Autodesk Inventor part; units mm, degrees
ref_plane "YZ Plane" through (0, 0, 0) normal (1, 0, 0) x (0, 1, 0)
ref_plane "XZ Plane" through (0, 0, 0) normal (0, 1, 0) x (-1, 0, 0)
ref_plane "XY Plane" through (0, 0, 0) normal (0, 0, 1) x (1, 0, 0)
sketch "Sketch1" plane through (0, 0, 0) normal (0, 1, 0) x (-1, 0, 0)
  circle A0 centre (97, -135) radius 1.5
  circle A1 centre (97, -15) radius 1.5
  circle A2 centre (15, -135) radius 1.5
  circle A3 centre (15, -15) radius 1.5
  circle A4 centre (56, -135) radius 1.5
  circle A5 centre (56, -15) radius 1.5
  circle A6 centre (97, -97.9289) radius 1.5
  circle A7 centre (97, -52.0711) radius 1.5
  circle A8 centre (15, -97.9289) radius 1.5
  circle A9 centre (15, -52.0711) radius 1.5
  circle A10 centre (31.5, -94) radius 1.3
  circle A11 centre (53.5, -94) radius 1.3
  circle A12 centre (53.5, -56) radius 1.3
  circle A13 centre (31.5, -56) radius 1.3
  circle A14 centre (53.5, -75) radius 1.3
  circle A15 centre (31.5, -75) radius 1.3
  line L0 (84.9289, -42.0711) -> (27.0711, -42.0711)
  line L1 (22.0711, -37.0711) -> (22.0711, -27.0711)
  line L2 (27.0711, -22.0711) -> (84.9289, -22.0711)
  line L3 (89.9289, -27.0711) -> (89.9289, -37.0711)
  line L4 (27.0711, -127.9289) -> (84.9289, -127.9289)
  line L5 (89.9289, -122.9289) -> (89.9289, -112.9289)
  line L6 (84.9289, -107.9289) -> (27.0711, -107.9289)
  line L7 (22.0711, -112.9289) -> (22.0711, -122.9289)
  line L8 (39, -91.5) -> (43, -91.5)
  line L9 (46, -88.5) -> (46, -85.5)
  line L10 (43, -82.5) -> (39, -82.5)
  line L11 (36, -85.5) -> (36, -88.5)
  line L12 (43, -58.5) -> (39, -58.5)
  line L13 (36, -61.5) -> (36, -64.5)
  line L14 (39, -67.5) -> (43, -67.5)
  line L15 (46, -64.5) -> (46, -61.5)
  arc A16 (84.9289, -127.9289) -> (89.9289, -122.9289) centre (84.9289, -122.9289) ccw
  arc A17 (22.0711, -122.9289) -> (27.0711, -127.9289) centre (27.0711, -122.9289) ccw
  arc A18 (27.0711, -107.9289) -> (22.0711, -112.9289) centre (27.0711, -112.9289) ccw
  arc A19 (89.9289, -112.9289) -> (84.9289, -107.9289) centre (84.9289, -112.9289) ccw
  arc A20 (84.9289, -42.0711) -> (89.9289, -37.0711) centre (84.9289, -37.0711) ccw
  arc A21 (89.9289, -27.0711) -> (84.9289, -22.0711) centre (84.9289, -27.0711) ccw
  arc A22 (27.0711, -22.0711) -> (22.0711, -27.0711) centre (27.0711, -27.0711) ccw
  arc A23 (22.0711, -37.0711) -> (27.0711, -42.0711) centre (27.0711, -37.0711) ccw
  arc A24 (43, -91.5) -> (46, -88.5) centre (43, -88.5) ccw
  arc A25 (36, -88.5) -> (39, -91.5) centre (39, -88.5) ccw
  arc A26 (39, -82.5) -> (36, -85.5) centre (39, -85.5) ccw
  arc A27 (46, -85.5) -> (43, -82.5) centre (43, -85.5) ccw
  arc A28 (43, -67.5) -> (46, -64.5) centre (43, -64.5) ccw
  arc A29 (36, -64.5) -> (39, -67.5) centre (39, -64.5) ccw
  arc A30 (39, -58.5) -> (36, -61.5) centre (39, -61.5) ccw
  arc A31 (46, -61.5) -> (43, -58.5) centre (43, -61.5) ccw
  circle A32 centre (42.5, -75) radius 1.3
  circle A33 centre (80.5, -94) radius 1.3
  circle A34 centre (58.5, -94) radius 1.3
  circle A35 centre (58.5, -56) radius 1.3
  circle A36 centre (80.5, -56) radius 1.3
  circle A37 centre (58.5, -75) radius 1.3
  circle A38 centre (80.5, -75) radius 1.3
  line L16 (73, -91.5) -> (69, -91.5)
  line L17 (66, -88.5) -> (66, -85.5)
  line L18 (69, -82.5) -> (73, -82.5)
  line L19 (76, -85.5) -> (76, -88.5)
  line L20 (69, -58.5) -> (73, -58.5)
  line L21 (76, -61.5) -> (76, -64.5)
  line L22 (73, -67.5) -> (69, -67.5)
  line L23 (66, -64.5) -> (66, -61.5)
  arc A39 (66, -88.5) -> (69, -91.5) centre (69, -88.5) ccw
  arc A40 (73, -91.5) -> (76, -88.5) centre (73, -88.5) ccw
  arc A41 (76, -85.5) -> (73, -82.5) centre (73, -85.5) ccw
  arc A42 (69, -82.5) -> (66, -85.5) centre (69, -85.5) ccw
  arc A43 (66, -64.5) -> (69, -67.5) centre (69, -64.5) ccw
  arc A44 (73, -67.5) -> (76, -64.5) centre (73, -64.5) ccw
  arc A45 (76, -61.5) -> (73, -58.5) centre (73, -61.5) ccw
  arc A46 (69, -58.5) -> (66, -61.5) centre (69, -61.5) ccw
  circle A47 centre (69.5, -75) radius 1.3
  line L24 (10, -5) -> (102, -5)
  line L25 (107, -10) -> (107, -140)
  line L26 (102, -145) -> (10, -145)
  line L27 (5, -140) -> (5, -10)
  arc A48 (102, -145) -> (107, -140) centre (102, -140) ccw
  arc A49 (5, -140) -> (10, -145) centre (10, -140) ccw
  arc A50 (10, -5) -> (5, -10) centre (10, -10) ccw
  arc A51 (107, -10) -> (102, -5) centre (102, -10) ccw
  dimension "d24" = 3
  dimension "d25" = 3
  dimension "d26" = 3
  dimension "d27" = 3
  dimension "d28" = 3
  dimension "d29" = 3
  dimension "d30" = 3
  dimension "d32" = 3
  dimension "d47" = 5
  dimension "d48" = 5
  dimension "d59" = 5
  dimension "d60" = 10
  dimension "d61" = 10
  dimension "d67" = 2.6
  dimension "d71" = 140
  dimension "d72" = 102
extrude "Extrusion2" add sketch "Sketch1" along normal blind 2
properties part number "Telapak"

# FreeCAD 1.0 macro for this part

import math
import FreeCAD as App
import Part
import Sketcher
from FreeCAD import Vector

doc = App.newDocument("Part")
params = doc.addObject("Spreadsheet::Sheet", "Params")
for row, (alias, value) in enumerate([
    ("sketch1_diameter", "3 mm"),
    ("sketch1_radius", "5 mm"),
    ("sketch1_radius2", "3 mm"),
    ("sketch1_diameter2", "2.6 mm"),
    ("sketch1_height", "3 mm"),
    ("pad1_length", "2 mm"),
], start=1):
    params.set(f"A{row}", alias)
    params.set(f"B{row}", "=" + value)
    params.setAlias(f"B{row}", alias)

body = doc.addObject("PartDesign::Body", "Body")

sketch1 = doc.addObject("Sketcher::SketchObject", "Sketch")
body.addObject(sketch1)
sketch1.AttachmentSupport = (doc.XZ_Plane, [""])
sketch1.MapMode = "FlatFace"
sketch1.addGeometry([
    Part.LineSegment(Vector(-102, -5, 0), Vector(-10, -5, 0)),
    Part.ArcOfCircle(Part.Circle(Vector(-10, -10, 0), Vector(0, 0, 1), 5), math.radians(0), math.radians(90)),
    Part.LineSegment(Vector(-5, -10, 0), Vector(-5, -140, 0)),
    Part.ArcOfCircle(Part.Circle(Vector(-10, -140, 0), Vector(0, 0, 1), 5), math.radians(-90), math.radians(0)),
    Part.LineSegment(Vector(-10, -145, 0), Vector(-102, -145, 0)),
    Part.ArcOfCircle(Part.Circle(Vector(-102, -140, 0), Vector(0, 0, 1), 5), math.radians(180), math.radians(270)),
    Part.LineSegment(Vector(-107, -140, 0), Vector(-107, -10, 0)),
    Part.ArcOfCircle(Part.Circle(Vector(-102, -10, 0), Vector(0, 0, 1), 5), math.radians(90), math.radians(180)),
    Part.Circle(Vector(-15, -135, 0), Vector(0, 0, 1), 1.5),
    Part.Circle(Vector(-15, -97.9, 0), Vector(0, 0, 1), 1.5),
    Part.Circle(Vector(-31.5, -94, 0), Vector(0, 0, 1), 1.3),
    Part.Circle(Vector(-53.5, -94, 0), Vector(0, 0, 1), 1.3),
    Part.LineSegment(Vector(-43, -91.5, 0), Vector(-39, -91.5, 0)),
    Part.ArcOfCircle(Part.Circle(Vector(-39, -88.5, 0), Vector(0, 0, 1), 3), math.radians(-90), math.radians(0)),
    Part.LineSegment(Vector(-36, -88.5, 0), Vector(-36, -85.5, 0)),
    Part.ArcOfCircle(Part.Circle(Vector(-39, -85.5, 0), Vector(0, 0, 1), 3), math.radians(0), math.radians(90)),
    Part.LineSegment(Vector(-39, -82.5, 0), Vector(-43, -82.5, 0)),
    Part.ArcOfCircle(Part.Circle(Vector(-43, -85.5, 0), Vector(0, 0, 1), 3), math.radians(90), math.radians(180)),
    Part.LineSegment(Vector(-46, -85.5, 0), Vector(-46, -88.5, 0)),
    Part.ArcOfCircle(Part.Circle(Vector(-43, -88.5, 0), Vector(0, 0, 1), 3), math.radians(180), math.radians(270)),
    Part.Circle(Vector(-56, -135, 0), Vector(0, 0, 1), 1.5),
    Part.LineSegment(Vector(-84.9, -127.9, 0), Vector(-27.1, -127.9, 0)),
    Part.ArcOfCircle(Part.Circle(Vector(-27.1, -122.9, 0), Vector(0, 0, 1), 5), math.radians(-90), math.radians(0)),
    Part.LineSegment(Vector(-22.1, -122.9, 0), Vector(-22.1, -112.9, 0)),
    Part.ArcOfCircle(Part.Circle(Vector(-27.1, -112.9, 0), Vector(0, 0, 1), 5), math.radians(0), math.radians(90)),
    Part.LineSegment(Vector(-27.1, -107.9, 0), Vector(-84.9, -107.9, 0)),
    Part.ArcOfCircle(Part.Circle(Vector(-84.9, -112.9, 0), Vector(0, 0, 1), 5), math.radians(90), math.radians(180)),
    Part.LineSegment(Vector(-89.9, -112.9, 0), Vector(-89.9, -122.9, 0)),
    Part.ArcOfCircle(Part.Circle(Vector(-84.9, -122.9, 0), Vector(0, 0, 1), 5), math.radians(180), math.radians(270)),
    Part.Circle(Vector(-97, -135, 0), Vector(0, 0, 1), 1.5),
    Part.Circle(Vector(-58.5, -94, 0), Vector(0, 0, 1), 1.3),
    Part.Circle(Vector(-80.5, -94, 0), Vector(0, 0, 1), 1.3),
    Part.ArcOfCircle(Part.Circle(Vector(-73, -88.5, 0), Vector(0, 0, 1), 3), math.radians(180), math.radians(270)),
    Part.LineSegment(Vector(-73, -91.5, 0), Vector(-69, -91.5, 0)),
    Part.ArcOfCircle(Part.Circle(Vector(-69, -88.5, 0), Vector(0, 0, 1), 3), math.radians(-90), math.radians(0)),
    Part.LineSegment(Vector(-66, -88.5, 0), Vector(-66, -85.5, 0)),
    Part.ArcOfCircle(Part.Circle(Vector(-69, -85.5, 0), Vector(0, 0, 1), 3), math.radians(0), math.radians(90)),
    Part.LineSegment(Vector(-69, -82.5, 0), Vector(-73, -82.5, 0)),
    Part.ArcOfCircle(Part.Circle(Vector(-73, -85.5, 0), Vector(0, 0, 1), 3), math.radians(90), math.radians(180)),
    Part.LineSegment(Vector(-76, -85.5, 0), Vector(-76, -88.5, 0)),
    Part.Circle(Vector(-97, -97.9, 0), Vector(0, 0, 1), 1.5),
    Part.Circle(Vector(-15, -52.1, 0), Vector(0, 0, 1), 1.5),
    Part.Circle(Vector(-31.5, -75, 0), Vector(0, 0, 1), 1.3),
    Part.Circle(Vector(-42.5, -75, 0), Vector(0, 0, 1), 1.3),
    Part.LineSegment(Vector(-39, -58.5, 0), Vector(-43, -58.5, 0)),
    Part.ArcOfCircle(Part.Circle(Vector(-43, -61.5, 0), Vector(0, 0, 1), 3), math.radians(90), math.radians(180)),
    Part.LineSegment(Vector(-46, -61.5, 0), Vector(-46, -64.5, 0)),
    Part.ArcOfCircle(Part.Circle(Vector(-43, -64.5, 0), Vector(0, 0, 1), 3), math.radians(180), math.radians(270)),
    Part.LineSegment(Vector(-43, -67.5, 0), Vector(-39, -67.5, 0)),
    Part.ArcOfCircle(Part.Circle(Vector(-39, -64.5, 0), Vector(0, 0, 1), 3), math.radians(-90), math.radians(0)),
    Part.LineSegment(Vector(-36, -64.5, 0), Vector(-36, -61.5, 0)),
    Part.ArcOfCircle(Part.Circle(Vector(-39, -61.5, 0), Vector(0, 0, 1), 3), math.radians(0), math.radians(90)),
    Part.Circle(Vector(-53.5, -75, 0), Vector(0, 0, 1), 1.3),
    Part.Circle(Vector(-31.5, -56, 0), Vector(0, 0, 1), 1.3),
    Part.Circle(Vector(-53.5, -56, 0), Vector(0, 0, 1), 1.3),
    Part.Circle(Vector(-15, -15, 0), Vector(0, 0, 1), 1.5),
    Part.Circle(Vector(-58.5, -75, 0), Vector(0, 0, 1), 1.3),
    Part.Circle(Vector(-69.5, -75, 0), Vector(0, 0, 1), 1.3),
    Part.Circle(Vector(-80.5, -75, 0), Vector(0, 0, 1), 1.3),
    Part.ArcOfCircle(Part.Circle(Vector(-69, -61.5, 0), Vector(0, 0, 1), 3), math.radians(0), math.radians(90)),
    Part.LineSegment(Vector(-69, -58.5, 0), Vector(-73, -58.5, 0)),
    Part.ArcOfCircle(Part.Circle(Vector(-73, -61.5, 0), Vector(0, 0, 1), 3), math.radians(90), math.radians(180)),
    Part.LineSegment(Vector(-76, -61.5, 0), Vector(-76, -64.5, 0)),
    Part.ArcOfCircle(Part.Circle(Vector(-73, -64.5, 0), Vector(0, 0, 1), 3), math.radians(180), math.radians(270)),
    Part.LineSegment(Vector(-73, -67.5, 0), Vector(-69, -67.5, 0)),
    Part.ArcOfCircle(Part.Circle(Vector(-69, -64.5, 0), Vector(0, 0, 1), 3), math.radians(-90), math.radians(0)),
    Part.LineSegment(Vector(-66, -64.5, 0), Vector(-66, -61.5, 0)),
    Part.Circle(Vector(-58.5, -56, 0), Vector(0, 0, 1), 1.3),
    Part.Circle(Vector(-80.5, -56, 0), Vector(0, 0, 1), 1.3),
    Part.Circle(Vector(-97, -52.1, 0), Vector(0, 0, 1), 1.5),
    Part.ArcOfCircle(Part.Circle(Vector(-84.9, -37.1, 0), Vector(0, 0, 1), 5), math.radians(180), math.radians(270)),
    Part.LineSegment(Vector(-84.9, -42.1, 0), Vector(-27.1, -42.1, 0)),
    Part.ArcOfCircle(Part.Circle(Vector(-27.1, -37.1, 0), Vector(0, 0, 1), 5), math.radians(-90), math.radians(0)),
    Part.LineSegment(Vector(-22.1, -37.1, 0), Vector(-22.1, -27.1, 0)),
    Part.ArcOfCircle(Part.Circle(Vector(-27.1, -27.1, 0), Vector(0, 0, 1), 5), math.radians(0), math.radians(90)),
    Part.LineSegment(Vector(-27.1, -22.1, 0), Vector(-84.9, -22.1, 0)),
    Part.ArcOfCircle(Part.Circle(Vector(-84.9, -27.1, 0), Vector(0, 0, 1), 5), math.radians(90), math.radians(180)),
    Part.LineSegment(Vector(-89.9, -27.1, 0), Vector(-89.9, -37.1, 0)),
    Part.Circle(Vector(-56, -15, 0), Vector(0, 0, 1), 1.5),
    Part.Circle(Vector(-97, -15, 0), Vector(0, 0, 1), 1.5),
], False)
sketch1.addConstraint([
    Sketcher.Constraint("Tangent", 0, 2, 1, 2),
    Sketcher.Constraint("Tangent", 1, 1, 2, 1),
    Sketcher.Constraint("Tangent", 2, 2, 3, 2),
    Sketcher.Constraint("Tangent", 3, 1, 4, 1),
    Sketcher.Constraint("Tangent", 4, 2, 5, 2),
    Sketcher.Constraint("Tangent", 5, 1, 6, 1),
    Sketcher.Constraint("Tangent", 6, 2, 7, 2),
    Sketcher.Constraint("Tangent", 7, 1, 0, 1),
    Sketcher.Constraint("Tangent", 12, 2, 13, 1),
    Sketcher.Constraint("Tangent", 13, 2, 14, 1),
    Sketcher.Constraint("Tangent", 14, 2, 15, 1),
    Sketcher.Constraint("Tangent", 15, 2, 16, 1),
    Sketcher.Constraint("Tangent", 16, 2, 17, 1),
    Sketcher.Constraint("Tangent", 17, 2, 18, 1),
    Sketcher.Constraint("Tangent", 18, 2, 19, 1),
    Sketcher.Constraint("Tangent", 19, 2, 12, 1),
    Sketcher.Constraint("Tangent", 21, 2, 22, 1),
    Sketcher.Constraint("Tangent", 22, 2, 23, 1),
    Sketcher.Constraint("Tangent", 23, 2, 24, 1),
    Sketcher.Constraint("Tangent", 24, 2, 25, 1),
    Sketcher.Constraint("Tangent", 25, 2, 26, 1),
    Sketcher.Constraint("Tangent", 26, 2, 27, 1),
    Sketcher.Constraint("Tangent", 27, 2, 28, 1),
    Sketcher.Constraint("Tangent", 28, 2, 21, 1),
    Sketcher.Constraint("Tangent", 32, 2, 33, 1),
    Sketcher.Constraint("Tangent", 33, 2, 34, 1),
    Sketcher.Constraint("Tangent", 34, 2, 35, 1),
    Sketcher.Constraint("Tangent", 35, 2, 36, 1),
    Sketcher.Constraint("Tangent", 36, 2, 37, 1),
    Sketcher.Constraint("Tangent", 37, 2, 38, 1),
    Sketcher.Constraint("Tangent", 38, 2, 39, 1),
    Sketcher.Constraint("Tangent", 39, 2, 32, 1),
    Sketcher.Constraint("Tangent", 44, 2, 45, 1),
    Sketcher.Constraint("Tangent", 45, 2, 46, 1),
    Sketcher.Constraint("Tangent", 46, 2, 47, 1),
    Sketcher.Constraint("Tangent", 47, 2, 48, 1),
    Sketcher.Constraint("Tangent", 48, 2, 49, 1),
    Sketcher.Constraint("Tangent", 49, 2, 50, 1),
    Sketcher.Constraint("Tangent", 50, 2, 51, 1),
    Sketcher.Constraint("Tangent", 51, 2, 44, 1),
    Sketcher.Constraint("Tangent", 59, 2, 60, 1),
    Sketcher.Constraint("Tangent", 60, 2, 61, 1),
    Sketcher.Constraint("Tangent", 61, 2, 62, 1),
    Sketcher.Constraint("Tangent", 62, 2, 63, 1),
    Sketcher.Constraint("Tangent", 63, 2, 64, 1),
    Sketcher.Constraint("Tangent", 64, 2, 65, 1),
    Sketcher.Constraint("Tangent", 65, 2, 66, 1),
    Sketcher.Constraint("Tangent", 66, 2, 59, 1),
    Sketcher.Constraint("Tangent", 70, 2, 71, 1),
    Sketcher.Constraint("Tangent", 71, 2, 72, 1),
    Sketcher.Constraint("Tangent", 72, 2, 73, 1),
    Sketcher.Constraint("Tangent", 73, 2, 74, 1),
    Sketcher.Constraint("Tangent", 74, 2, 75, 1),
    Sketcher.Constraint("Tangent", 75, 2, 76, 1),
    Sketcher.Constraint("Tangent", 76, 2, 77, 1),
    Sketcher.Constraint("Tangent", 77, 2, 70, 1),
    Sketcher.Constraint("Horizontal", 0),
    Sketcher.Constraint("Vertical", 2),
    Sketcher.Constraint("Horizontal", 4),
    Sketcher.Constraint("Vertical", 6),
    Sketcher.Constraint("Horizontal", 12),
    Sketcher.Constraint("Vertical", 14),
    Sketcher.Constraint("Horizontal", 16),
    Sketcher.Constraint("Vertical", 18),
    Sketcher.Constraint("Horizontal", 21),
    Sketcher.Constraint("Vertical", 23),
    Sketcher.Constraint("Horizontal", 25),
    Sketcher.Constraint("Vertical", 27),
    Sketcher.Constraint("Horizontal", 33),
    Sketcher.Constraint("Vertical", 35),
    Sketcher.Constraint("Horizontal", 37),
    Sketcher.Constraint("Vertical", 39),
    Sketcher.Constraint("Horizontal", 44),
    Sketcher.Constraint("Vertical", 46),
    Sketcher.Constraint("Horizontal", 48),
    Sketcher.Constraint("Vertical", 50),
    Sketcher.Constraint("Horizontal", 60),
    Sketcher.Constraint("Vertical", 62),
    Sketcher.Constraint("Horizontal", 64),
    Sketcher.Constraint("Vertical", 66),
    Sketcher.Constraint("Horizontal", 71),
    Sketcher.Constraint("Vertical", 73),
    Sketcher.Constraint("Horizontal", 75),
    Sketcher.Constraint("Vertical", 77),
    Sketcher.Constraint("Equal", 1, 3),
    Sketcher.Constraint("Equal", 3, 5),
    Sketcher.Constraint("Equal", 5, 7),
    Sketcher.Constraint("Equal", 8, 9),
    Sketcher.Constraint("Equal", 10, 11),
    Sketcher.Constraint("Equal", 13, 15),
    Sketcher.Constraint("Equal", 15, 17),
    Sketcher.Constraint("Equal", 17, 19),
    Sketcher.Constraint("Equal", 9, 20),
    Sketcher.Constraint("Equal", 7, 22),
    Sketcher.Constraint("Equal", 22, 24),
    Sketcher.Constraint("Equal", 24, 26),
    Sketcher.Constraint("Equal", 26, 28),
    Sketcher.Constraint("Equal", 20, 29),
    Sketcher.Constraint("Equal", 11, 30),
    Sketcher.Constraint("Equal", 30, 31),
    Sketcher.Constraint("Equal", 19, 32),
    Sketcher.Constraint("Equal", 32, 34),
    Sketcher.Constraint("Equal", 34, 36),
    Sketcher.Constraint("Equal", 36, 38),
    Sketcher.Constraint("Equal", 29, 40),
    Sketcher.Constraint("Equal", 40, 41),
    Sketcher.Constraint("Equal", 31, 42),
    Sketcher.Constraint("Equal", 42, 43),
    Sketcher.Constraint("Equal", 38, 45),
    Sketcher.Constraint("Equal", 45, 47),
    Sketcher.Constraint("Equal", 47, 49),
    Sketcher.Constraint("Equal", 49, 51),
    Sketcher.Constraint("Equal", 43, 52),
    Sketcher.Constraint("Equal", 52, 53),
    Sketcher.Constraint("Equal", 53, 54),
    Sketcher.Constraint("Equal", 41, 55),
    Sketcher.Constraint("Equal", 54, 56),
    Sketcher.Constraint("Equal", 56, 57),
    Sketcher.Constraint("Equal", 57, 58),
    Sketcher.Constraint("Equal", 51, 59),
    Sketcher.Constraint("Equal", 59, 61),
    Sketcher.Constraint("Equal", 61, 63),
    Sketcher.Constraint("Equal", 63, 65),
    Sketcher.Constraint("Equal", 58, 67),
    Sketcher.Constraint("Equal", 67, 68),
    Sketcher.Constraint("Equal", 55, 69),
    Sketcher.Constraint("Equal", 28, 70),
    Sketcher.Constraint("Equal", 70, 72),
    Sketcher.Constraint("Equal", 72, 74),
    Sketcher.Constraint("Equal", 74, 76),
    Sketcher.Constraint("Equal", 69, 78),
    Sketcher.Constraint("Equal", 78, 79),
    Sketcher.Constraint("Horizontal", 10, 3, 11, 3),
    Sketcher.Constraint("Horizontal", 8, 3, 20, 3),
    Sketcher.Constraint("Horizontal", 20, 3, 29, 3),
    Sketcher.Constraint("Horizontal", 11, 3, 30, 3),
    Sketcher.Constraint("Horizontal", 30, 3, 31, 3),
    Sketcher.Constraint("Horizontal", 19, 3, 32, 3),
    Sketcher.Constraint("Horizontal", 17, 3, 36, 3),
    Sketcher.Constraint("Horizontal", 9, 3, 40, 3),
    Sketcher.Constraint("Horizontal", 42, 3, 43, 3),
    Sketcher.Constraint("Horizontal", 43, 3, 52, 3),
    Sketcher.Constraint("Horizontal", 53, 3, 54, 3),
    Sketcher.Constraint("Horizontal", 52, 3, 56, 3),
    Sketcher.Constraint("Horizontal", 56, 3, 57, 3),
    Sketcher.Constraint("Horizontal", 57, 3, 58, 3),
    Sketcher.Constraint("Horizontal", 51, 3, 59, 3),
    Sketcher.Constraint("Horizontal", 49, 3, 63, 3),
    Sketcher.Constraint("Horizontal", 54, 3, 67, 3),
    Sketcher.Constraint("Horizontal", 67, 3, 68, 3),
    Sketcher.Constraint("Horizontal", 41, 3, 69, 3),
    Sketcher.Constraint("Horizontal", 55, 3, 78, 3),
    Sketcher.Constraint("Horizontal", 78, 3, 79, 3),
    Sketcher.Constraint("Vertical", 8, 3, 9, 3),
    Sketcher.Constraint("Vertical", 29, 3, 40, 3),
    Sketcher.Constraint("Vertical", 9, 3, 41, 3),
    Sketcher.Constraint("Vertical", 10, 3, 42, 3),
    Sketcher.Constraint("Vertical", 19, 3, 45, 3),
    Sketcher.Constraint("Vertical", 15, 3, 49, 3),
    Sketcher.Constraint("Vertical", 11, 3, 52, 3),
    Sketcher.Constraint("Vertical", 42, 3, 53, 3),
    Sketcher.Constraint("Vertical", 52, 3, 54, 3),
    Sketcher.Constraint("Vertical", 41, 3, 55, 3),
    Sketcher.Constraint("Vertical", 30, 3, 56, 3),
    Sketcher.Constraint("Vertical", 31, 3, 58, 3),
    Sketcher.Constraint("Vertical", 36, 3, 59, 3),
    Sketcher.Constraint("Vertical", 38, 3, 61, 3),
    Sketcher.Constraint("Vertical", 56, 3, 67, 3),
    Sketcher.Constraint("Vertical", 58, 3, 68, 3),
    Sketcher.Constraint("Vertical", 40, 3, 69, 3),
    Sketcher.Constraint("Vertical", 28, 3, 70, 3),
    Sketcher.Constraint("Vertical", 24, 3, 72, 3),
    Sketcher.Constraint("Vertical", 20, 3, 78, 3),
    Sketcher.Constraint("Vertical", 69, 3, 79, 3),
    Sketcher.Constraint("Equal", 16, 33),
    Sketcher.Constraint("Equal", 39, 46),
    Sketcher.Constraint("Equal", 27, 73),
    Sketcher.Constraint("Diameter", 8, 3.0),
    Sketcher.Constraint("Radius", 1, 5.0),
    Sketcher.Constraint("Radius", 13, 3.0),
    Sketcher.Constraint("Diameter", 10, 2.6),
    Sketcher.Constraint("DistanceY", 14, 1, 14, 2, 3.0),
    Sketcher.Constraint("DistanceY", 23, 1, 23, 2, 10.0),
    Sketcher.Constraint("DistanceX", 1, 3, -1, 1, 10.0),
    Sketcher.Constraint("DistanceY", 1, 3, -1, 1, 10.0),
    Sketcher.Constraint("DistanceY", 3, 3, -1, 1, 140.0),
    Sketcher.Constraint("DistanceX", 5, 3, -1, 1, 102.0),
    Sketcher.Constraint("DistanceX", 12, 1, 12, 2, 4.0),
    Sketcher.Constraint("DistanceX", 8, 3, -1, 1, 15.0),
    Sketcher.Constraint("DistanceY", 8, 3, -1, 1, 135.0),
    Sketcher.Constraint("DistanceY", 10, 3, -1, 1, 94.0),
    Sketcher.Constraint("DistanceX", 13, 3, -1, 1, 39.0),
    Sketcher.Constraint("DistanceX", 20, 3, -1, 1, 56.0),
    Sketcher.Constraint("DistanceX", 29, 3, -1, 1, 97.0),
    Sketcher.Constraint("DistanceX", 32, 3, -1, 1, 73.0),
    Sketcher.Constraint("DistanceY", 42, 3, -1, 1, 75.0),
    Sketcher.Constraint("DistanceY", 53, 3, -1, 1, 56.0),
    Sketcher.Constraint("DistanceY", 55, 3, -1, 1, 15.0),
    Sketcher.Constraint("DistanceX", 10, 3, -1, 1, 31.5),
    Sketcher.Constraint("DistanceX", 11, 3, -1, 1, 53.5),
    Sketcher.Constraint("DistanceY", 13, 3, -1, 1, 88.5),
    Sketcher.Constraint("DistanceX", 30, 3, -1, 1, 58.5),
    Sketcher.Constraint("DistanceX", 31, 3, -1, 1, 80.5),
    Sketcher.Constraint("DistanceX", 43, 3, -1, 1, 42.5),
    Sketcher.Constraint("DistanceY", 45, 3, -1, 1, 61.5),
    Sketcher.Constraint("DistanceX", 57, 3, -1, 1, 69.5),
    Sketcher.Constraint("DistanceX", 21, 1, 21, 2, 57.8578),
    Sketcher.Constraint("DistanceY", 9, 3, -1, 1, 97.929),
    Sketcher.Constraint("DistanceX", 22, 3, -1, 1, 27.071),
    Sketcher.Constraint("DistanceY", 22, 3, -1, 1, 122.929),
    Sketcher.Constraint("DistanceY", 41, 3, -1, 1, 52.071),
    Sketcher.Constraint("DistanceY", 70, 3, -1, 1, 37.071),
])
sketch1.setExpression("Constraints[177]", "Params.sketch1_diameter")
sketch1.setExpression("Constraints[178]", "Params.sketch1_radius")
sketch1.setExpression("Constraints[179]", "Params.sketch1_radius2")
sketch1.setExpression("Constraints[180]", "Params.sketch1_diameter2")
sketch1.setExpression("Constraints[181]", "Params.sketch1_height")
pad1 = doc.addObject("PartDesign::Pad", "Pad")
body.addObject(pad1)
pad1.Profile = sketch1
pad1.setExpression("Length", "Params.pad1_length")
pad1.Reversed = True

doc.recompute()
